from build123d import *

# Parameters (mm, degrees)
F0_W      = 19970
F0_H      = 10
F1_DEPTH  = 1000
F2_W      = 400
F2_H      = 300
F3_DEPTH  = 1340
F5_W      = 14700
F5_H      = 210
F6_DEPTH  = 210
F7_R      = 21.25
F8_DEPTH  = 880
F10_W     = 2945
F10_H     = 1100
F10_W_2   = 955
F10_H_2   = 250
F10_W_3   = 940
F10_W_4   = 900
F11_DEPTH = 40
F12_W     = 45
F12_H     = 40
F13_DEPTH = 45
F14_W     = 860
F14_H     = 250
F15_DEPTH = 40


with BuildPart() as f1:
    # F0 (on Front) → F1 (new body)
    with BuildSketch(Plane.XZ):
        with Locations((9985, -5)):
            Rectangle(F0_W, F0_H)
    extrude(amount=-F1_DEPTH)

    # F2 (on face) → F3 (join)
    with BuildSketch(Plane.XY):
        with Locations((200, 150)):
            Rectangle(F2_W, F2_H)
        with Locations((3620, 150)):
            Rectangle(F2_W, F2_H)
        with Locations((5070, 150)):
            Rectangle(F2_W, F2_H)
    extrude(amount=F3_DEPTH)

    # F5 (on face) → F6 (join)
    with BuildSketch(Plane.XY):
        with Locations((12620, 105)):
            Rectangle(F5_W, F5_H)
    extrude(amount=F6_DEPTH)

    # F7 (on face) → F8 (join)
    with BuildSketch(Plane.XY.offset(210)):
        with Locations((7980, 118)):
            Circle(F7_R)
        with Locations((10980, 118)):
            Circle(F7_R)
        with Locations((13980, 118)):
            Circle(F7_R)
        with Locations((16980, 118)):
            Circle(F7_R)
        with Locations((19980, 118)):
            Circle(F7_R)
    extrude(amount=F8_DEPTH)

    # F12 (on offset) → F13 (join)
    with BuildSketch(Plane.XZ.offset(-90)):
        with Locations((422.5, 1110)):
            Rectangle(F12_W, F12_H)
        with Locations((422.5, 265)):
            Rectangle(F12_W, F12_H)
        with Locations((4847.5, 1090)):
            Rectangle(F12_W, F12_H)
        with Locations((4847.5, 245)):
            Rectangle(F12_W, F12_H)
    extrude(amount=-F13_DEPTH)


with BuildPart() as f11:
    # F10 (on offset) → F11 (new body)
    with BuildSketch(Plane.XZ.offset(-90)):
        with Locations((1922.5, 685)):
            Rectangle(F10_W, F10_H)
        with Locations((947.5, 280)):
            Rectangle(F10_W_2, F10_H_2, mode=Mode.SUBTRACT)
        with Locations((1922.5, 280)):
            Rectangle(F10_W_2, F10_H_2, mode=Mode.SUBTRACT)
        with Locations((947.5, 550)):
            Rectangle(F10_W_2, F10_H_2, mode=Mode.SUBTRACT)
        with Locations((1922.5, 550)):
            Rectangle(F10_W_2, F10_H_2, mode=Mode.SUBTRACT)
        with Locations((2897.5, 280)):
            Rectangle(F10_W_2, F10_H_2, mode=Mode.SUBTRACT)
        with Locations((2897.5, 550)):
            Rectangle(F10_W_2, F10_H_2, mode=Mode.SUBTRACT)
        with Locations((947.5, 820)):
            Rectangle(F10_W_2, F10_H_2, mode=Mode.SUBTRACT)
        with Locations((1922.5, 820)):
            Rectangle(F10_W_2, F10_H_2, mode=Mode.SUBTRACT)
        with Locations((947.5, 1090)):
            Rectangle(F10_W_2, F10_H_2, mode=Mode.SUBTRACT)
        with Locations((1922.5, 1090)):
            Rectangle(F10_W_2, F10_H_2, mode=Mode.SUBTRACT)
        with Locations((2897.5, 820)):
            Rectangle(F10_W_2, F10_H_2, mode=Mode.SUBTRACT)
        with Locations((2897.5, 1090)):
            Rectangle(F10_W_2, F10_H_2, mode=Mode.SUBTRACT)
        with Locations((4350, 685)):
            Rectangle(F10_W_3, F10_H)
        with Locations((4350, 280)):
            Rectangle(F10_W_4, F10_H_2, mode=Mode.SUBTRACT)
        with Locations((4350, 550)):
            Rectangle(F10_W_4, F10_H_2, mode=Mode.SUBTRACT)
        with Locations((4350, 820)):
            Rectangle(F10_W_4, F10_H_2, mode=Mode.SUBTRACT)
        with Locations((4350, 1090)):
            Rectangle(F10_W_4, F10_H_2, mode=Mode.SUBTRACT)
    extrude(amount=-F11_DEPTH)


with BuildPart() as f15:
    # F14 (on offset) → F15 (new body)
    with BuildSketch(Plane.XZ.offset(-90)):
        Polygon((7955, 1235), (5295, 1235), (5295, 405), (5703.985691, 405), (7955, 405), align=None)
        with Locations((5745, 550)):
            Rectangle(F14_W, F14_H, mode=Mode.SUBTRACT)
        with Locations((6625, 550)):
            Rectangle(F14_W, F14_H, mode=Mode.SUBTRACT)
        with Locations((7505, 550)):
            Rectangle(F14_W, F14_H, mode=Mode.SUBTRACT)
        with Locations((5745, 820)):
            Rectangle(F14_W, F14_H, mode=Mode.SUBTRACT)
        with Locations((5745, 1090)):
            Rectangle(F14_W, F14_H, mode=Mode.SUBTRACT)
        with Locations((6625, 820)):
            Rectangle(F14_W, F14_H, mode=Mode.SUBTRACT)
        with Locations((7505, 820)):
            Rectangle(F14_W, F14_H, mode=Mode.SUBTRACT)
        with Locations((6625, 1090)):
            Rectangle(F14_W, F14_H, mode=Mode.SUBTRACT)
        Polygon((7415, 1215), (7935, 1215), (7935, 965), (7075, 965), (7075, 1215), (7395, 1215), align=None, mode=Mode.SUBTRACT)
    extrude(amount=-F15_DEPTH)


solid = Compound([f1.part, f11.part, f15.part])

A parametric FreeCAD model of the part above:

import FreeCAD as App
import Part
import Sketcher
from FreeCAD import Vector

doc = App.newDocument("Part")
body = doc.addObject("PartDesign::Body", "Body")

sketch1 = doc.addObject("Sketcher::SketchObject", "Sketch")
body.addObject(sketch1)
sketch1.AttachmentSupport = (doc.XZ_Plane, [""])
sketch1.MapMode = "FlatFace"
sketch1.addGeometry([
    Part.LineSegment(Vector(0, 0, 0), Vector(0, -10, 0)),
    Part.LineSegment(Vector(0, -10, 0), Vector(19970, -10, 0)),
    Part.LineSegment(Vector(19970, -10, 0), Vector(19970, 0, 0)),
    Part.LineSegment(Vector(19970, 0, 0), Vector(0, 0, 0)),
], False)
sketch1.addConstraint([
    Sketcher.Constraint("Coincident", 0, 2, 1, 1),
    Sketcher.Constraint("Coincident", 1, 2, 2, 1),
    Sketcher.Constraint("Coincident", 2, 2, 3, 1),
    Sketcher.Constraint("Coincident", 3, 2, 0, 1),
    Sketcher.Constraint("Vertical", 0),
    Sketcher.Constraint("Horizontal", 1),
    Sketcher.Constraint("Vertical", 2),
    Sketcher.Constraint("Horizontal", 3),
    Sketcher.Constraint("Coincident", 3, 2, -1, 1),
    Sketcher.Constraint("DistanceX", 1, 1, 1, 2, 19970.0),
    Sketcher.Constraint("DistanceY", 0, 2, 0, 1, 10.0),
])
pad1 = doc.addObject("PartDesign::Pad", "Pad")
body.addObject(pad1)
pad1.Profile = sketch1
pad1.Length = 1000
pad1.Reversed = True

sketch2 = doc.addObject("Sketcher::SketchObject", "Sketch001")
body.addObject(sketch2)
sketch2.AttachmentSupport = (doc.XY_Plane, [""])
sketch2.MapMode = "FlatFace"
sketch2.addGeometry([
    Part.LineSegment(Vector(0, 300, 0), Vector(0, 0, 0)),
    Part.LineSegment(Vector(0, 0, 0), Vector(400, 0, 0)),
    Part.LineSegment(Vector(400, 0, 0), Vector(400, 300, 0)),
    Part.LineSegment(Vector(400, 300, 0), Vector(0, 300, 0)),
    Part.LineSegment(Vector(3420, 300, 0), Vector(3420, 0, 0)),
    Part.LineSegment(Vector(3420, 0, 0), Vector(3820, 0, 0)),
    Part.LineSegment(Vector(3820, 0, 0), Vector(3820, 300, 0)),
    Part.LineSegment(Vector(3820, 300, 0), Vector(3420, 300, 0)),
    Part.LineSegment(Vector(4870, 300, 0), Vector(4870, 0, 0)),
    Part.LineSegment(Vector(4870, 0, 0), Vector(5270, 0, 0)),
    Part.LineSegment(Vector(5270, 0, 0), Vector(5270, 300, 0)),
    Part.LineSegment(Vector(5270, 300, 0), Vector(4870, 300, 0)),
], False)
sketch2.addConstraint([
    Sketcher.Constraint("Coincident", 0, 2, 1, 1),
    Sketcher.Constraint("Coincident", 1, 2, 2, 1),
    Sketcher.Constraint("Coincident", 2, 2, 3, 1),
    Sketcher.Constraint("Coincident", 3, 2, 0, 1),
    Sketcher.Constraint("Coincident", 4, 2, 5, 1),
    Sketcher.Constraint("Coincident", 5, 2, 6, 1),
    Sketcher.Constraint("Coincident", 6, 2, 7, 1),
    Sketcher.Constraint("Coincident", 7, 2, 4, 1),
    Sketcher.Constraint("Coincident", 8, 2, 9, 1),
    Sketcher.Constraint("Coincident", 9, 2, 10, 1),
    Sketcher.Constraint("Coincident", 10, 2, 11, 1),
    Sketcher.Constraint("Coincident", 11, 2, 8, 1),
    Sketcher.Constraint("Vertical", 0),
    Sketcher.Constraint("Horizontal", 1),
    Sketcher.Constraint("Vertical", 2),
    Sketcher.Constraint("Horizontal", 3),
    Sketcher.Constraint("Vertical", 4),
    Sketcher.Constraint("Horizontal", 5),
    Sketcher.Constraint("Vertical", 6),
    Sketcher.Constraint("Horizontal", 7),
    Sketcher.Constraint("Vertical", 8),
    Sketcher.Constraint("Horizontal", 9),
    Sketcher.Constraint("Vertical", 10),
    Sketcher.Constraint("Horizontal", 11),
    Sketcher.Constraint("Coincident", 0, 2, -1, 1),
    Sketcher.Constraint("PointOnObject", 4, 2, -1),
    Sketcher.Constraint("PointOnObject", 8, 2, -1),
    Sketcher.Constraint("Horizontal", 3, 2, 6, 2),
    Sketcher.Constraint("Horizontal", 7, 2, 10, 2),
    Sketcher.Constraint("Equal", 3, 5),
    Sketcher.Constraint("Equal", 7, 9),
    Sketcher.Constraint("DistanceX", 1, 1, 1, 2, 400.0),
    Sketcher.Constraint("DistanceY", 0, 2, 0, 1, 300.0),
    Sketcher.Constraint("DistanceX", -1, 1, 4, 2, 3420.0),
    Sketcher.Constraint("DistanceX", -1, 1, 8, 2, 4870.0),
])
pad2 = doc.addObject("PartDesign::Pad", "Pad001")
body.addObject(pad2)
pad2.Profile = sketch2
pad2.Length = 1340

sketch3 = doc.addObject("Sketcher::SketchObject", "Sketch002")
body.addObject(sketch3)
sketch3.AttachmentSupport = (doc.XY_Plane, [""])
sketch3.MapMode = "FlatFace"
sketch3.addGeometry([
    Part.LineSegment(Vector(5270, 210, 0), Vector(5270, 0, 0)),
    Part.LineSegment(Vector(5270, 0, 0), Vector(19970, 0, 0)),
    Part.LineSegment(Vector(19970, 0, 0), Vector(19970, 210, 0)),
    Part.LineSegment(Vector(19970, 210, 0), Vector(5270, 210, 0)),
], False)
sketch3.addConstraint([
    Sketcher.Constraint("Coincident", 0, 2, 1, 1),
    Sketcher.Constraint("Coincident", 1, 2, 2, 1),
    Sketcher.Constraint("Coincident", 2, 2, 3, 1),
    Sketcher.Constraint("Coincident", 3, 2, 0, 1),
    Sketcher.Constraint("Vertical", 0),
    Sketcher.Constraint("Horizontal", 1),
    Sketcher.Constraint("Vertical", 2),
    Sketcher.Constraint("Horizontal", 3),
    Sketcher.Constraint("PointOnObject", 0, 2, -1),
    Sketcher.Constraint("DistanceX", 1, 1, 1, 2, 14700.0),
    Sketcher.Constraint("DistanceY", 0, 2, 0, 1, 210.0),
    Sketcher.Constraint("DistanceX", -1, 1, 0, 2, 5270.0),
])
pad3 = doc.addObject("PartDesign::Pad", "Pad002")
body.addObject(pad3)
pad3.Profile = sketch3
pad3.Length = 210

sketch4 = doc.addObject("Sketcher::SketchObject", "Sketch003")
body.addObject(sketch4)
sketch4.AttachmentSupport = (doc.XY_Plane, [""])
sketch4.MapMode = "FlatFace"
sketch4.AttachmentOffset = App.Placement(Vector(0, 0, 210), App.Rotation())
sketch4.addGeometry([
    Part.Circle(Vector(7980, 118, 0), Vector(0, 0, 1), 21.25),
    Part.Circle(Vector(10980, 118, 0), Vector(0, 0, 1), 21.25),
    Part.Circle(Vector(13980, 118, 0), Vector(0, 0, 1), 21.25),
    Part.Circle(Vector(16980, 118, 0), Vector(0, 0, 1), 21.25),
    Part.Circle(Vector(19980, 118, 0), Vector(0, 0, 1), 21.25),
], False)
sketch4.addConstraint([
    Sketcher.Constraint("Equal", 0, 1),
    Sketcher.Constraint("Equal", 1, 2),
    Sketcher.Constraint("Equal", 2, 3),
    Sketcher.Constraint("Equal", 3, 4),
    Sketcher.Constraint("Horizontal", 0, 3, 1, 3),
    Sketcher.Constraint("Horizontal", 1, 3, 2, 3),
    Sketcher.Constraint("Horizontal", 2, 3, 3, 3),
    Sketcher.Constraint("Horizontal", 3, 3, 4, 3),
    Sketcher.Constraint("Diameter", 0, 42.5),
    Sketcher.Constraint("DistanceX", -1, 1, 0, 3, 7980.0),
    Sketcher.Constraint("DistanceY", -1, 1, 0, 3, 118.0),
    Sketcher.Constraint("DistanceX", -1, 1, 1, 3, 10980.0),
    Sketcher.Constraint("DistanceX", -1, 1, 2, 3, 13980.0),
    Sketcher.Constraint("DistanceX", -1, 1, 3, 3, 16980.0),
    Sketcher.Constraint("DistanceX", -1, 1, 4, 3, 19980.0),
])
pad4 = doc.addObject("PartDesign::Pad", "Pad003")
body.addObject(pad4)
pad4.Profile = sketch4
pad4.Length = 880

sketch5 = doc.addObject("Sketcher::SketchObject", "Sketch004")
body.addObject(sketch5)
sketch5.AttachmentSupport = (doc.XZ_Plane, [""])
sketch5.MapMode = "FlatFace"
sketch5.AttachmentOffset = App.Placement(Vector(0, 0, -90), App.Rotation())
sketch5.addGeometry([
    Part.LineSegment(Vector(400, 1130, 0), Vector(400, 1090, 0)),
    Part.LineSegment(Vector(400, 1090, 0), Vector(445, 1090, 0)),
    Part.LineSegment(Vector(445, 1090, 0), Vector(445, 1130, 0)),
    Part.LineSegment(Vector(445, 1130, 0), Vector(400, 1130, 0)),
    Part.LineSegment(Vector(400, 285, 0), Vector(400, 245, 0)),
    Part.LineSegment(Vector(400, 245, 0), Vector(445, 245, 0)),
    Part.LineSegment(Vector(445, 245, 0), Vector(445, 285, 0)),
    Part.LineSegment(Vector(445, 285, 0), Vector(400, 285, 0)),
    Part.LineSegment(Vector(4825, 1110, 0), Vector(4825, 1070, 0)),
    Part.LineSegment(Vector(4825, 1070, 0), Vector(4870, 1070, 0)),
    Part.LineSegment(Vector(4870, 1070, 0), Vector(4870, 1110, 0)),
    Part.LineSegment(Vector(4870, 1110, 0), Vector(4825, 1110, 0)),
    Part.LineSegment(Vector(4825, 265, 0), Vector(4825, 225, 0)),
    Part.LineSegment(Vector(4825, 225, 0), Vector(4870, 225, 0)),
    Part.LineSegment(Vector(4870, 225, 0), Vector(4870, 265, 0)),
    Part.LineSegment(Vector(4870, 265, 0), Vector(4825, 265, 0)),
], False)
sketch5.addConstraint([
    Sketcher.Constraint("Coincident", 0, 2, 1, 1),
    Sketcher.Constraint("Coincident", 1, 2, 2, 1),
    Sketcher.Constraint("Coincident", 2, 2, 3, 1),
    Sketcher.Constraint("Coincident", 3, 2, 0, 1),
    Sketcher.Constraint("Coincident", 4, 2, 5, 1),
    Sketcher.Constraint("Coincident", 5, 2, 6, 1),
    Sketcher.Constraint("Coincident", 6, 2, 7, 1),
    Sketcher.Constraint("Coincident", 7, 2, 4, 1),
    Sketcher.Constraint("Coincident", 8, 2, 9, 1),
    Sketcher.Constraint("Coincident", 9, 2, 10, 1),
    Sketcher.Constraint("Coincident", 10, 2, 11, 1),
    Sketcher.Constraint("Coincident", 11, 2, 8, 1),
    Sketcher.Constraint("Coincident", 12, 2, 13, 1),
    Sketcher.Constraint("Coincident", 13, 2, 14, 1),
    Sketcher.Constraint("Coincident", 14, 2, 15, 1),
    Sketcher.Constraint("Coincident", 15, 2, 12, 1),
    Sketcher.Constraint("Vertical", 0),
    Sketcher.Constraint("Horizontal", 1),
    Sketcher.Constraint("Vertical", 2),
    Sketcher.Constraint("Horizontal", 3),
    Sketcher.Constraint("Vertical", 4),
    Sketcher.Constraint("Horizontal", 5),
    Sketcher.Constraint("Vertical", 6),
    Sketcher.Constraint("Horizontal", 7),
    Sketcher.Constraint("Vertical", 8),
    Sketcher.Constraint("Horizontal", 9),
    Sketcher.Constraint("Vertical", 10),
    Sketcher.Constraint("Horizontal", 11),
    Sketcher.Constraint("Vertical", 12),
    Sketcher.Constraint("Horizontal", 13),
    Sketcher.Constraint("Vertical", 14),
    Sketcher.Constraint("Horizontal", 15),
    Sketcher.Constraint("Vertical", 3, 2, 4, 2),
    Sketcher.Constraint("Vertical", 2, 2, 5, 2),
    Sketcher.Constraint("Vertical", 11, 2, 12, 2),
    Sketcher.Constraint("Vertical", 10, 2, 13, 2),
    Sketcher.Constraint("Equal", 7, 9),
    Sketcher.Constraint("Equal", 2, 4),
    Sketcher.Constraint("Equal", 6, 8),
    Sketcher.Constraint("Equal", 10, 12),
    Sketcher.Constraint("DistanceX", 1, 1, 1, 2, 45.0),
    Sketcher.Constraint("DistanceY", 0, 2, 0, 1, 40.0),
    Sketcher.Constraint("DistanceX", -1, 1, 0, 2, 400.0),
    Sketcher.Constraint("DistanceY", -1, 1, 0, 2, 1090.0),
    Sketcher.Constraint("DistanceY", -1, 1, 4, 2, 245.0),
    Sketcher.Constraint("DistanceX", -1, 1, 8, 2, 4825.0),
    Sketcher.Constraint("DistanceY", -1, 1, 8, 2, 1070.0),
    Sketcher.Constraint("DistanceY", -1, 1, 12, 2, 225.0),
])
pad5 = doc.addObject("PartDesign::Pad", "Pad004")
body.addObject(pad5)
pad5.Profile = sketch5
pad5.Length = 45
pad5.Reversed = True
body2 = doc.addObject("PartDesign::Body", "Body001")
body2.AllowCompound = True

sketch6 = doc.addObject("Sketcher::SketchObject", "Sketch005")
body2.addObject(sketch6)
sketch6.AttachmentSupport = (doc.getObject("XZ_Plane001"), [""])
sketch6.MapMode = "FlatFace"
sketch6.AttachmentOffset = App.Placement(Vector(0, 0, -90), App.Rotation())
sketch6.addGeometry([
    Part.LineSegment(Vector(450, 1235, 0), Vector(450, 135, 0)),
    Part.LineSegment(Vector(450, 135, 0), Vector(3395, 135, 0)),
    Part.LineSegment(Vector(3395, 135, 0), Vector(3395, 1235, 0)),
    Part.LineSegment(Vector(3395, 1235, 0), Vector(450, 1235, 0)),
    Part.LineSegment(Vector(1425, 155, 0), Vector(470, 155, 0)),
    Part.LineSegment(Vector(470, 155, 0), Vector(470, 405, 0)),
    Part.LineSegment(Vector(470, 405, 0), Vector(1425, 405, 0)),
    Part.LineSegment(Vector(1425, 405, 0), Vector(1425, 155, 0)),
    Part.LineSegment(Vector(1425, 425, 0), Vector(470, 425, 0)),
    Part.LineSegment(Vector(470, 425, 0), Vector(470, 675, 0)),
    Part.LineSegment(Vector(470, 675, 0), Vector(1425, 675, 0)),
    Part.LineSegment(Vector(1425, 675, 0), Vector(1425, 425, 0)),
    Part.LineSegment(Vector(2400, 155, 0), Vector(1445, 155, 0)),
    Part.LineSegment(Vector(1445, 155, 0), Vector(1445, 405, 0)),
    Part.LineSegment(Vector(1445, 405, 0), Vector(2400, 405, 0)),
    Part.LineSegment(Vector(2400, 405, 0), Vector(2400, 155, 0)),
    Part.LineSegment(Vector(3375, 155, 0), Vector(2420, 155, 0)),
    Part.LineSegment(Vector(2420, 155, 0), Vector(2420, 405, 0)),
    Part.LineSegment(Vector(2420, 405, 0), Vector(3375, 405, 0)),
    Part.LineSegment(Vector(3375, 405, 0), Vector(3375, 155, 0)),
    Part.LineSegment(Vector(2400, 425, 0), Vector(1445, 425, 0)),
    Part.LineSegment(Vector(1445, 425, 0), Vector(1445, 675, 0)),
    Part.LineSegment(Vector(1445, 675, 0), Vector(2400, 675, 0)),
    Part.LineSegment(Vector(2400, 675, 0), Vector(2400, 425, 0)),
    Part.LineSegment(Vector(3375, 425, 0), Vector(2420, 425, 0)),
    Part.LineSegment(Vector(2420, 425, 0), Vector(2420, 675, 0)),
    Part.LineSegment(Vector(2420, 675, 0), Vector(3375, 675, 0)),
    Part.LineSegment(Vector(3375, 675, 0), Vector(3375, 425, 0)),
    Part.LineSegment(Vector(1425, 695, 0), Vector(470, 695, 0)),
    Part.LineSegment(Vector(470, 695, 0), Vector(470, 945, 0)),
    Part.LineSegment(Vector(470, 945, 0), Vector(1425, 945, 0)),
    Part.LineSegment(Vector(1425, 945, 0), Vector(1425, 695, 0)),
    Part.LineSegment(Vector(1425, 965, 0), Vector(470, 965, 0)),
    Part.LineSegment(Vector(470, 965, 0), Vector(470, 1215, 0)),
    Part.LineSegment(Vector(470, 1215, 0), Vector(1425, 1215, 0)),
    Part.LineSegment(Vector(1425, 1215, 0), Vector(1425, 965, 0)),
    Part.LineSegment(Vector(2400, 695, 0), Vector(1445, 695, 0)),
    Part.LineSegment(Vector(1445, 695, 0), Vector(1445, 945, 0)),
    Part.LineSegment(Vector(1445, 945, 0), Vector(2400, 945, 0)),
    Part.LineSegment(Vector(2400, 945, 0), Vector(2400, 695, 0)),
    Part.LineSegment(Vector(3375, 695, 0), Vector(2420, 695, 0)),
    Part.LineSegment(Vector(2420, 695, 0), Vector(2420, 945, 0)),
    Part.LineSegment(Vector(2420, 945, 0), Vector(3375, 945, 0)),
    Part.LineSegment(Vector(3375, 945, 0), Vector(3375, 695, 0)),
    Part.LineSegment(Vector(2400, 965, 0), Vector(1445, 965, 0)),
    Part.LineSegment(Vector(1445, 965, 0), Vector(1445, 1215, 0)),
    Part.LineSegment(Vector(1445, 1215, 0), Vector(2400, 1215, 0)),
    Part.LineSegment(Vector(2400, 1215, 0), Vector(2400, 965, 0)),
    Part.LineSegment(Vector(3375, 965, 0), Vector(2420, 965, 0)),
    Part.LineSegment(Vector(2420, 965, 0), Vector(2420, 1215, 0)),
    Part.LineSegment(Vector(2420, 1215, 0), Vector(3375, 1215, 0)),
    Part.LineSegment(Vector(3375, 1215, 0), Vector(3375, 965, 0)),
    Part.LineSegment(Vector(3880, 1235, 0), Vector(3880, 135, 0)),
    Part.LineSegment(Vector(3880, 135, 0), Vector(4820, 135, 0)),
    Part.LineSegment(Vector(4820, 135, 0), Vector(4820, 1235, 0)),
    Part.LineSegment(Vector(4820, 1235, 0), Vector(3880, 1235, 0)),
    Part.LineSegment(Vector(4800, 155, 0), Vector(3900, 155, 0)),
    Part.LineSegment(Vector(3900, 155, 0), Vector(3900, 405, 0)),
    Part.LineSegment(Vector(3900, 405, 0), Vector(4800, 405, 0)),
    Part.LineSegment(Vector(4800, 405, 0), Vector(4800, 155, 0)),
    Part.LineSegment(Vector(4800, 425, 0), Vector(3900, 425, 0)),
    Part.LineSegment(Vector(3900, 425, 0), Vector(3900, 675, 0)),
    Part.LineSegment(Vector(3900, 675, 0), Vector(4800, 675, 0)),
    Part.LineSegment(Vector(4800, 675, 0), Vector(4800, 425, 0)),
    Part.LineSegment(Vector(4800, 695, 0), Vector(3900, 695, 0)),
    Part.LineSegment(Vector(3900, 695, 0), Vector(3900, 945, 0)),
    Part.LineSegment(Vector(3900, 945, 0), Vector(4800, 945, 0)),
    Part.LineSegment(Vector(4800, 945, 0), Vector(4800, 695, 0)),
    Part.LineSegment(Vector(4800, 965, 0), Vector(3900, 965, 0)),
    Part.LineSegment(Vector(3900, 965, 0), Vector(3900, 1215, 0)),
    Part.LineSegment(Vector(3900, 1215, 0), Vector(4800, 1215, 0)),
    Part.LineSegment(Vector(4800, 1215, 0), Vector(4800, 965, 0)),
], False)
sketch6.addConstraint([
    Sketcher.Constraint("Coincident", 0, 2, 1, 1),
    Sketcher.Constraint("Coincident", 1, 2, 2, 1),
    Sketcher.Constraint("Coincident", 2, 2, 3, 1),
    Sketcher.Constraint("Coincident", 3, 2, 0, 1),
    Sketcher.Constraint("Coincident", 4, 2, 5, 1),
    Sketcher.Constraint("Coincident", 5, 2, 6, 1),
    Sketcher.Constraint("Coincident", 6, 2, 7, 1),
    Sketcher.Constraint("Coincident", 7, 2, 4, 1),
    Sketcher.Constraint("Coincident", 8, 2, 9, 1),
    Sketcher.Constraint("Coincident", 9, 2, 10, 1),
    Sketcher.Constraint("Coincident", 10, 2, 11, 1),
    Sketcher.Constraint("Coincident", 11, 2, 8, 1),
    Sketcher.Constraint("Coincident", 12, 2, 13, 1),
    Sketcher.Constraint("Coincident", 13, 2, 14, 1),
    Sketcher.Constraint("Coincident", 14, 2, 15, 1),
    Sketcher.Constraint("Coincident", 15, 2, 12, 1),
    Sketcher.Constraint("Coincident", 16, 2, 17, 1),
    Sketcher.Constraint("Coincident", 17, 2, 18, 1),
    Sketcher.Constraint("Coincident", 18, 2, 19, 1),
    Sketcher.Constraint("Coincident", 19, 2, 16, 1),
    Sketcher.Constraint("Coincident", 20, 2, 21, 1),
    Sketcher.Constraint("Coincident", 21, 2, 22, 1),
    Sketcher.Constraint("Coincident", 22, 2, 23, 1),
    Sketcher.Constraint("Coincident", 23, 2, 20, 1),
    Sketcher.Constraint("Coincident", 24, 2, 25, 1),
    Sketcher.Constraint("Coincident", 25, 2, 26, 1),
    Sketcher.Constraint("Coincident", 26, 2, 27, 1),
    Sketcher.Constraint("Coincident", 27, 2, 24, 1),
    Sketcher.Constraint("Coincident", 28, 2, 29, 1),
    Sketcher.Constraint("Coincident", 29, 2, 30, 1),
    Sketcher.Constraint("Coincident", 30, 2, 31, 1),
    Sketcher.Constraint("Coincident", 31, 2, 28, 1),
    Sketcher.Constraint("Coincident", 32, 2, 33, 1),
    Sketcher.Constraint("Coincident", 33, 2, 34, 1),
    Sketcher.Constraint("Coincident", 34, 2, 35, 1),
    Sketcher.Constraint("Coincident", 35, 2, 32, 1),
    Sketcher.Constraint("Coincident", 36, 2, 37, 1),
    Sketcher.Constraint("Coincident", 37, 2, 38, 1),
    Sketcher.Constraint("Coincident", 38, 2, 39, 1),
    Sketcher.Constraint("Coincident", 39, 2, 36, 1),
    Sketcher.Constraint("Coincident", 40, 2, 41, 1),
    Sketcher.Constraint("Coincident", 41, 2, 42, 1),
    Sketcher.Constraint("Coincident", 42, 2, 43, 1),
    Sketcher.Constraint("Coincident", 43, 2, 40, 1),
    Sketcher.Constraint("Coincident", 44, 2, 45, 1),
    Sketcher.Constraint("Coincident", 45, 2, 46, 1),
    Sketcher.Constraint("Coincident", 46, 2, 47, 1),
    Sketcher.Constraint("Coincident", 47, 2, 44, 1),
    Sketcher.Constraint("Coincident", 48, 2, 49, 1),
    Sketcher.Constraint("Coincident", 49, 2, 50, 1),
    Sketcher.Constraint("Coincident", 50, 2, 51, 1),
    Sketcher.Constraint("Coincident", 51, 2, 48, 1),
    Sketcher.Constraint("Coincident", 52, 2, 53, 1),
    Sketcher.Constraint("Coincident", 53, 2, 54, 1),
    Sketcher.Constraint("Coincident", 54, 2, 55, 1),
    Sketcher.Constraint("Coincident", 55, 2, 52, 1),
    Sketcher.Constraint("Coincident", 56, 2, 57, 1),
    Sketcher.Constraint("Coincident", 57, 2, 58, 1),
    Sketcher.Constraint("Coincident", 58, 2, 59, 1),
    Sketcher.Constraint("Coincident", 59, 2, 56, 1),
    Sketcher.Constraint("Coincident", 60, 2, 61, 1),
    Sketcher.Constraint("Coincident", 61, 2, 62, 1),
    Sketcher.Constraint("Coincident", 62, 2, 63, 1),
    Sketcher.Constraint("Coincident", 63, 2, 60, 1),
    Sketcher.Constraint("Coincident", 64, 2, 65, 1),
    Sketcher.Constraint("Coincident", 65, 2, 66, 1),
    Sketcher.Constraint("Coincident", 66, 2, 67, 1),
    Sketcher.Constraint("Coincident", 67, 2, 64, 1),
    Sketcher.Constraint("Coincident", 68, 2, 69, 1),
    Sketcher.Constraint("Coincident", 69, 2, 70, 1),
    Sketcher.Constraint("Coincident", 70, 2, 71, 1),
    Sketcher.Constraint("Coincident", 71, 2, 68, 1),
    Sketcher.Constraint("Vertical", 0),
    Sketcher.Constraint("Horizontal", 1),
    Sketcher.Constraint("Vertical", 2),
    Sketcher.Constraint("Horizontal", 3),
    Sketcher.Constraint("Horizontal", 4),
    Sketcher.Constraint("Vertical", 5),
    Sketcher.Constraint("Horizontal", 6),
    Sketcher.Constraint("Vertical", 7),
    Sketcher.Constraint("Horizontal", 8),
    Sketcher.Constraint("Vertical", 9),
    Sketcher.Constraint("Horizontal", 10),
    Sketcher.Constraint("Vertical", 11),
    Sketcher.Constraint("Horizontal", 12),
    Sketcher.Constraint("Vertical", 13),
    Sketcher.Constraint("Horizontal", 14),
    Sketcher.Constraint("Vertical", 15),
    Sketcher.Constraint("Horizontal", 16),
    Sketcher.Constraint("Vertical", 17),
    Sketcher.Constraint("Horizontal", 18),
    Sketcher.Constraint("Vertical", 19),
    Sketcher.Constraint("Horizontal", 20),
    Sketcher.Constraint("Vertical", 21),
    Sketcher.Constraint("Horizontal", 22),
    Sketcher.Constraint("Vertical", 23),
    Sketcher.Constraint("Horizontal", 24),
    Sketcher.Constraint("Vertical", 25),
    Sketcher.Constraint("Horizontal", 26),
    Sketcher.Constraint("Vertical", 27),
    Sketcher.Constraint("Horizontal", 28),
    Sketcher.Constraint("Vertical", 29),
    Sketcher.Constraint("Horizontal", 30),
    Sketcher.Constraint("Vertical", 31),
    Sketcher.Constraint("Horizontal", 32),
    Sketcher.Constraint("Vertical", 33),
    Sketcher.Constraint("Horizontal", 34),
    Sketcher.Constraint("Vertical", 35),
    Sketcher.Constraint("Horizontal", 36),
    Sketcher.Constraint("Vertical", 37),
    Sketcher.Constraint("Horizontal", 38),
    Sketcher.Constraint("Vertical", 39),
    Sketcher.Constraint("Horizontal", 40),
    Sketcher.Constraint("Vertical", 41),
    Sketcher.Constraint("Horizontal", 42),
    Sketcher.Constraint("Vertical", 43),
    Sketcher.Constraint("Horizontal", 44),
    Sketcher.Constraint("Vertical", 45),
    Sketcher.Constraint("Horizontal", 46),
    Sketcher.Constraint("Vertical", 47),
    Sketcher.Constraint("Horizontal", 48),
    Sketcher.Constraint("Vertical", 49),
    Sketcher.Constraint("Horizontal", 50),
    Sketcher.Constraint("Vertical", 51),
    Sketcher.Constraint("Vertical", 52),
    Sketcher.Constraint("Horizontal", 53),
    Sketcher.Constraint("Vertical", 54),
    Sketcher.Constraint("Horizontal", 55),
    Sketcher.Constraint("Horizontal", 56),
    Sketcher.Constraint("Vertical", 57),
    Sketcher.Constraint("Horizontal", 58),
    Sketcher.Constraint("Vertical", 59),
    Sketcher.Constraint("Horizontal", 60),
    Sketcher.Constraint("Vertical", 61),
    Sketcher.Constraint("Horizontal", 62),
    Sketcher.Constraint("Vertical", 63),
    Sketcher.Constraint("Horizontal", 64),
    Sketcher.Constraint("Vertical", 65),
    Sketcher.Constraint("Horizontal", 66),
    Sketcher.Constraint("Vertical", 67),
    Sketcher.Constraint("Horizontal", 68),
    Sketcher.Constraint("Vertical", 69),
    Sketcher.Constraint("Horizontal", 70),
    Sketcher.Constraint("Vertical", 71),
    Sketcher.Constraint("Horizontal", 7, 2, 12, 2),
    Sketcher.Constraint("Horizontal", 6, 2, 13, 2),
    Sketcher.Constraint("Horizontal", 15, 2, 16, 2),
    Sketcher.Constraint("Horizontal", 14, 2, 17, 2),
    Sketcher.Constraint("Horizontal", 11, 2, 20, 2),
    Sketcher.Constraint("Horizontal", 10, 2, 21, 2),
    Sketcher.Constraint("Horizontal", 23, 2, 24, 2),
    Sketcher.Constraint("Horizontal", 22, 2, 25, 2),
    Sketcher.Constraint("Horizontal", 31, 2, 36, 2),
    Sketcher.Constraint("Horizontal", 30, 2, 37, 2),
    Sketcher.Constraint("Horizontal", 39, 2, 40, 2),
    Sketcher.Constraint("Horizontal", 38, 2, 41, 2),
    Sketcher.Constraint("Horizontal", 35, 2, 44, 2),
    Sketcher.Constraint("Horizontal", 34, 2, 45, 2),
    Sketcher.Constraint("Horizontal", 47, 2, 48, 2),
    Sketcher.Constraint("Horizontal", 46, 2, 49, 2),
    Sketcher.Constraint("Horizontal", 1, 2, 52, 2),
    Sketcher.Constraint("Horizontal", 3, 2, 54, 2),
    Sketcher.Constraint("Horizontal", 19, 2, 56, 2),
    Sketcher.Constraint("Horizontal", 18, 2, 57, 2),
    Sketcher.Constraint("Horizontal", 27, 2, 60, 2),
    Sketcher.Constraint("Horizontal", 26, 2, 61, 2),
    Sketcher.Constraint("Horizontal", 43, 2, 64, 2),
    Sketcher.Constraint("Horizontal", 42, 2, 65, 2),
    Sketcher.Constraint("Horizontal", 51, 2, 68, 2),
    Sketcher.Constraint("Horizontal", 50, 2, 69, 2),
    Sketcher.Constraint("Vertical", 5, 2, 8, 2),
    Sketcher.Constraint("Vertical", 7, 2, 10, 2),
    Sketcher.Constraint("Vertical", 13, 2, 20, 2),
    Sketcher.Constraint("Vertical", 15, 2, 22, 2),
    Sketcher.Constraint("Vertical", 17, 2, 24, 2),
    Sketcher.Constraint("Vertical", 19, 2, 26, 2),
    Sketcher.Constraint("Vertical", 9, 2, 28, 2),
    Sketcher.Constraint("Vertical", 11, 2, 30, 2),
    Sketcher.Constraint("Vertical", 29, 2, 32, 2),
    Sketcher.Constraint("Vertical", 31, 2, 34, 2),
    Sketcher.Constraint("Vertical", 21, 2, 36, 2),
    Sketcher.Constraint("Vertical", 23, 2, 38, 2),
    Sketcher.Constraint("Vertical", 25, 2, 40, 2),
    Sketcher.Constraint("Vertical", 27, 2, 42, 2),
    Sketcher.Constraint("Vertical", 37, 2, 44, 2),
    Sketcher.Constraint("Vertical", 39, 2, 46, 2),
    Sketcher.Constraint("Vertical", 41, 2, 48, 2),
    Sketcher.Constraint("Vertical", 43, 2, 50, 2),
    Sketcher.Constraint("Vertical", 57, 2, 60, 2),
    Sketcher.Constraint("Vertical", 59, 2, 62, 2),
    Sketcher.Constraint("Vertical", 61, 2, 64, 2),
    Sketcher.Constraint("Vertical", 63, 2, 66, 2),
    Sketcher.Constraint("Vertical", 65, 2, 68, 2),
    Sketcher.Constraint("Vertical", 67, 2, 70, 2),
    Sketcher.Constraint("Equal", 10, 12),
    Sketcher.Constraint("Equal", 14, 16),
    Sketcher.Constraint("Equal", 7, 9),
    Sketcher.Constraint("Equal", 27, 29),
    Sketcher.Constraint("Equal", 31, 33),
    Sketcher.Constraint("DistanceX", 1, 1, 1, 2, 2945.0),
    Sketcher.Constraint("DistanceX", 4, 2, 4, 1, 955.0),
    Sketcher.Constraint("DistanceX", 53, 1, 53, 2, 940.0),
    Sketcher.Constraint("DistanceX", 56, 2, 56, 1, 900.0),
    Sketcher.Constraint("DistanceY", 0, 2, 0, 1, 1100.0),
    Sketcher.Constraint("DistanceY", 5, 1, 5, 2, 250.0),
    Sketcher.Constraint("DistanceX", -1, 1, 0, 2, 450.0),
    Sketcher.Constraint("DistanceY", -1, 1, 0, 2, 135.0),
    Sketcher.Constraint("DistanceX", -1, 1, 4, 2, 470.0),
    Sketcher.Constraint("DistanceY", -1, 1, 4, 2, 155.0),
    Sketcher.Constraint("DistanceY", -1, 1, 8, 2, 425.0),
    Sketcher.Constraint("DistanceX", -1, 1, 12, 2, 1445.0),
    Sketcher.Constraint("DistanceX", -1, 1, 16, 2, 2420.0),
    Sketcher.Constraint("DistanceY", -1, 1, 28, 2, 695.0),
    Sketcher.Constraint("DistanceY", -1, 1, 32, 2, 965.0),
    Sketcher.Constraint("DistanceX", -1, 1, 52, 2, 3880.0),
    Sketcher.Constraint("DistanceX", -1, 1, 56, 2, 3900.0),
])
pad6 = doc.addObject("PartDesign::Pad", "Pad005")
body2.addObject(pad6)
pad6.Profile = sketch6
pad6.Length = 40
pad6.Reversed = True
body3 = doc.addObject("PartDesign::Body", "Body002")

sketch7 = doc.addObject("Sketcher::SketchObject", "Sketch006")
body3.addObject(sketch7)
sketch7.AttachmentSupport = (doc.getObject("XZ_Plane002"), [""])
sketch7.MapMode = "FlatFace"
sketch7.AttachmentOffset = App.Placement(Vector(0, 0, -90), App.Rotation())
sketch7.addGeometry([
    Part.LineSegment(Vector(7955, 1235, 0), Vector(5295, 1235, 0)),
    Part.LineSegment(Vector(5295, 1235, 0), Vector(5295, 405, 0)),
    Part.LineSegment(Vector(5295, 405, 0), Vector(7955, 405, 0)),
    Part.LineSegment(Vector(7955, 405, 0), Vector(7955, 1235, 0)),
    Part.LineSegment(Vector(6175, 425, 0), Vector(5315, 425, 0)),
    Part.LineSegment(Vector(5315, 425, 0), Vector(5315, 675, 0)),
    Part.LineSegment(Vector(5315, 675, 0), Vector(6175, 675, 0)),
    Part.LineSegment(Vector(6175, 675, 0), Vector(6175, 425, 0)),
    Part.LineSegment(Vector(7055, 425, 0), Vector(6195, 425, 0)),
    Part.LineSegment(Vector(6195, 425, 0), Vector(6195, 675, 0)),
    Part.LineSegment(Vector(6195, 675, 0), Vector(7055, 675, 0)),
    Part.LineSegment(Vector(7055, 675, 0), Vector(7055, 425, 0)),
    Part.LineSegment(Vector(7935, 425, 0), Vector(7075, 425, 0)),
    Part.LineSegment(Vector(7075, 425, 0), Vector(7075, 675, 0)),
    Part.LineSegment(Vector(7075, 675, 0), Vector(7935, 675, 0)),
    Part.LineSegment(Vector(7935, 675, 0), Vector(7935, 425, 0)),
    Part.LineSegment(Vector(6175, 695, 0), Vector(5315, 695, 0)),
    Part.LineSegment(Vector(5315, 695, 0), Vector(5315, 945, 0)),
    Part.LineSegment(Vector(5315, 945, 0), Vector(6175, 945, 0)),
    Part.LineSegment(Vector(6175, 945, 0), Vector(6175, 695, 0)),
    Part.LineSegment(Vector(6175, 965, 0), Vector(5315, 965, 0)),
    Part.LineSegment(Vector(5315, 965, 0), Vector(5315, 1215, 0)),
    Part.LineSegment(Vector(5315, 1215, 0), Vector(6175, 1215, 0)),
    Part.LineSegment(Vector(6175, 1215, 0), Vector(6175, 965, 0)),
    Part.LineSegment(Vector(7055, 695, 0), Vector(6195, 695, 0)),
    Part.LineSegment(Vector(6195, 695, 0), Vector(6195, 945, 0)),
    Part.LineSegment(Vector(6195, 945, 0), Vector(7055, 945, 0)),
    Part.LineSegment(Vector(7055, 945, 0), Vector(7055, 695, 0)),
    Part.LineSegment(Vector(7935, 695, 0), Vector(7075, 695, 0)),
    Part.LineSegment(Vector(7075, 695, 0), Vector(7075, 945, 0)),
    Part.LineSegment(Vector(7075, 945, 0), Vector(7935, 945, 0)),
    Part.LineSegment(Vector(7935, 945, 0), Vector(7935, 695, 0)),
    Part.LineSegment(Vector(7055, 965, 0), Vector(6195, 965, 0)),
    Part.LineSegment(Vector(6195, 965, 0), Vector(6195, 1215, 0)),
    Part.LineSegment(Vector(6195, 1215, 0), Vector(7055, 1215, 0)),
    Part.LineSegment(Vector(7055, 1215, 0), Vector(7055, 965, 0)),
    Part.LineSegment(Vector(7075, 1215, 0), Vector(7935, 1215, 0)),
    Part.LineSegment(Vector(7935, 1215, 0), Vector(7935, 965, 0)),
    Part.LineSegment(Vector(7935, 965, 0), Vector(7075, 965, 0)),
    Part.LineSegment(Vector(7075, 965, 0), Vector(7075, 1215, 0)),
], False)
sketch7.addConstraint([
    Sketcher.Constraint("Coincident", 0, 2, 1, 1),
    Sketcher.Constraint("Coincident", 1, 2, 2, 1),
    Sketcher.Constraint("Coincident", 2, 2, 3, 1),
    Sketcher.Constraint("Coincident", 3, 2, 0, 1),
    Sketcher.Constraint("Coincident", 4, 2, 5, 1),
    Sketcher.Constraint("Coincident", 5, 2, 6, 1),
    Sketcher.Constraint("Coincident", 6, 2, 7, 1),
    Sketcher.Constraint("Coincident", 7, 2, 4, 1),
    Sketcher.Constraint("Coincident", 8, 2, 9, 1),
    Sketcher.Constraint("Coincident", 9, 2, 10, 1),
    Sketcher.Constraint("Coincident", 10, 2, 11, 1),
    Sketcher.Constraint("Coincident", 11, 2, 8, 1),
    Sketcher.Constraint("Coincident", 12, 2, 13, 1),
    Sketcher.Constraint("Coincident", 13, 2, 14, 1),
    Sketcher.Constraint("Coincident", 14, 2, 15, 1),
    Sketcher.Constraint("Coincident", 15, 2, 12, 1),
    Sketcher.Constraint("Coincident", 16, 2, 17, 1),
    Sketcher.Constraint("Coincident", 17, 2, 18, 1),
    Sketcher.Constraint("Coincident", 18, 2, 19, 1),
    Sketcher.Constraint("Coincident", 19, 2, 16, 1),
    Sketcher.Constraint("Coincident", 20, 2, 21, 1),
    Sketcher.Constraint("Coincident", 21, 2, 22, 1),
    Sketcher.Constraint("Coincident", 22, 2, 23, 1),
    Sketcher.Constraint("Coincident", 23, 2, 20, 1),
    Sketcher.Constraint("Coincident", 24, 2, 25, 1),
    Sketcher.Constraint("Coincident", 25, 2, 26, 1),
    Sketcher.Constraint("Coincident", 26, 2, 27, 1),
    Sketcher.Constraint("Coincident", 27, 2, 24, 1),
    Sketcher.Constraint("Coincident", 28, 2, 29, 1),
    Sketcher.Constraint("Coincident", 29, 2, 30, 1),
    Sketcher.Constraint("Coincident", 30, 2, 31, 1),
    Sketcher.Constraint("Coincident", 31, 2, 28, 1),
    Sketcher.Constraint("Coincident", 32, 2, 33, 1),
    Sketcher.Constraint("Coincident", 33, 2, 34, 1),
    Sketcher.Constraint("Coincident", 34, 2, 35, 1),
    Sketcher.Constraint("Coincident", 35, 2, 32, 1),
    Sketcher.Constraint("Coincident", 36, 2, 37, 1),
    Sketcher.Constraint("Coincident", 37, 2, 38, 1),
    Sketcher.Constraint("Coincident", 38, 2, 39, 1),
    Sketcher.Constraint("Coincident", 39, 2, 36, 1),
    Sketcher.Constraint("Horizontal", 0),
    Sketcher.Constraint("Vertical", 1),
    Sketcher.Constraint("Horizontal", 2),
    Sketcher.Constraint("Vertical", 3),
    Sketcher.Constraint("Horizontal", 4),
    Sketcher.Constraint("Vertical", 5),
    Sketcher.Constraint("Horizontal", 6),
    Sketcher.Constraint("Vertical", 7),
    Sketcher.Constraint("Horizontal", 8),
    Sketcher.Constraint("Vertical", 9),
    Sketcher.Constraint("Horizontal", 10),
    Sketcher.Constraint("Vertical", 11),
    Sketcher.Constraint("Horizontal", 12),
    Sketcher.Constraint("Vertical", 13),
    Sketcher.Constraint("Horizontal", 14),
    Sketcher.Constraint("Vertical", 15),
    Sketcher.Constraint("Horizontal", 16),
    Sketcher.Constraint("Vertical", 17),
    Sketcher.Constraint("Horizontal", 18),
    Sketcher.Constraint("Vertical", 19),
    Sketcher.Constraint("Horizontal", 20),
    Sketcher.Constraint("Vertical", 21),
    Sketcher.Constraint("Horizontal", 22),
    Sketcher.Constraint("Vertical", 23),
    Sketcher.Constraint("Horizontal", 24),
    Sketcher.Constraint("Vertical", 25),
    Sketcher.Constraint("Horizontal", 26),
    Sketcher.Constraint("Vertical", 27),
    Sketcher.Constraint("Horizontal", 28),
    Sketcher.Constraint("Vertical", 29),
    Sketcher.Constraint("Horizontal", 30),
    Sketcher.Constraint("Vertical", 31),
    Sketcher.Constraint("Horizontal", 32),
    Sketcher.Constraint("Vertical", 33),
    Sketcher.Constraint("Horizontal", 34),
    Sketcher.Constraint("Vertical", 35),
    Sketcher.Constraint("Horizontal", 36),
    Sketcher.Constraint("Vertical", 37),
    Sketcher.Constraint("Horizontal", 38),
    Sketcher.Constraint("Vertical", 39),
    Sketcher.Constraint("Horizontal", 7, 2, 8, 2),
    Sketcher.Constraint("Horizontal", 6, 2, 9, 2),
    Sketcher.Constraint("Horizontal", 11, 2, 12, 2),
    Sketcher.Constraint("Horizontal", 10, 2, 13, 2),
    Sketcher.Constraint("Horizontal", 19, 2, 24, 2),
    Sketcher.Constraint("Horizontal", 18, 2, 25, 2),
    Sketcher.Constraint("Horizontal", 27, 2, 28, 2),
    Sketcher.Constraint("Horizontal", 26, 2, 29, 2),
    Sketcher.Constraint("Horizontal", 23, 2, 32, 2),
    Sketcher.Constraint("Horizontal", 22, 2, 33, 2),
    Sketcher.Constraint("Horizontal", 34, 2, 36, 2),
    Sketcher.Constraint("Horizontal", 35, 2, 37, 2),
    Sketcher.Constraint("Vertical", 5, 2, 16, 2),
    Sketcher.Constraint("Vertical", 7, 2, 18, 2),
    Sketcher.Constraint("Vertical", 17, 2, 20, 2),
    Sketcher.Constraint("Vertical", 19, 2, 22, 2),
    Sketcher.Constraint("Vertical", 9, 2, 24, 2),
    Sketcher.Constraint("Vertical", 11, 2, 26, 2),
    Sketcher.Constraint("Vertical", 13, 2, 28, 2),
    Sketcher.Constraint("Vertical", 15, 2, 30, 2),
    Sketcher.Constraint("Vertical", 25, 2, 32, 2),
    Sketcher.Constraint("Vertical", 27, 2, 34, 2),
    Sketcher.Constraint("Vertical", 31, 2, 36, 2),
    Sketcher.Constraint("Vertical", 29, 2, 38, 2),
    Sketcher.Constraint("Equal", 6, 8),
    Sketcher.Constraint("Equal", 10, 12),
    Sketcher.Constraint("Equal", 15, 17),
    Sketcher.Constraint("Equal", 19, 21),
    Sketcher.Constraint("DistanceX", 0, 2, 0, 1, 2660.0),
    Sketcher.Constraint("DistanceX", 4, 2, 4, 1, 860.0),
    Sketcher.Constraint("DistanceY", 1, 2, 1, 1, 830.0),
    Sketcher.Constraint("DistanceY", 5, 1, 5, 2, 250.0),
    Sketcher.Constraint("DistanceX", -1, 1, 0, 2, 5295.0),
    Sketcher.Constraint("DistanceY", -1, 1, 0, 2, 1235.0),
    Sketcher.Constraint("DistanceX", -1, 1, 4, 2, 5315.0),
    Sketcher.Constraint("DistanceY", -1, 1, 4, 2, 425.0),
    Sketcher.Constraint("DistanceX", -1, 1, 8, 2, 6195.0),
    Sketcher.Constraint("DistanceX", -1, 1, 12, 2, 7075.0),
    Sketcher.Constraint("DistanceY", -1, 1, 16, 2, 695.0),
    Sketcher.Constraint("DistanceY", -1, 1, 20, 2, 965.0),
])
pad7 = doc.addObject("PartDesign::Pad", "Pad006")
body3.addObject(pad7)
pad7.Profile = sketch7
pad7.Length = 40
pad7.Reversed = True

doc.recompute()
